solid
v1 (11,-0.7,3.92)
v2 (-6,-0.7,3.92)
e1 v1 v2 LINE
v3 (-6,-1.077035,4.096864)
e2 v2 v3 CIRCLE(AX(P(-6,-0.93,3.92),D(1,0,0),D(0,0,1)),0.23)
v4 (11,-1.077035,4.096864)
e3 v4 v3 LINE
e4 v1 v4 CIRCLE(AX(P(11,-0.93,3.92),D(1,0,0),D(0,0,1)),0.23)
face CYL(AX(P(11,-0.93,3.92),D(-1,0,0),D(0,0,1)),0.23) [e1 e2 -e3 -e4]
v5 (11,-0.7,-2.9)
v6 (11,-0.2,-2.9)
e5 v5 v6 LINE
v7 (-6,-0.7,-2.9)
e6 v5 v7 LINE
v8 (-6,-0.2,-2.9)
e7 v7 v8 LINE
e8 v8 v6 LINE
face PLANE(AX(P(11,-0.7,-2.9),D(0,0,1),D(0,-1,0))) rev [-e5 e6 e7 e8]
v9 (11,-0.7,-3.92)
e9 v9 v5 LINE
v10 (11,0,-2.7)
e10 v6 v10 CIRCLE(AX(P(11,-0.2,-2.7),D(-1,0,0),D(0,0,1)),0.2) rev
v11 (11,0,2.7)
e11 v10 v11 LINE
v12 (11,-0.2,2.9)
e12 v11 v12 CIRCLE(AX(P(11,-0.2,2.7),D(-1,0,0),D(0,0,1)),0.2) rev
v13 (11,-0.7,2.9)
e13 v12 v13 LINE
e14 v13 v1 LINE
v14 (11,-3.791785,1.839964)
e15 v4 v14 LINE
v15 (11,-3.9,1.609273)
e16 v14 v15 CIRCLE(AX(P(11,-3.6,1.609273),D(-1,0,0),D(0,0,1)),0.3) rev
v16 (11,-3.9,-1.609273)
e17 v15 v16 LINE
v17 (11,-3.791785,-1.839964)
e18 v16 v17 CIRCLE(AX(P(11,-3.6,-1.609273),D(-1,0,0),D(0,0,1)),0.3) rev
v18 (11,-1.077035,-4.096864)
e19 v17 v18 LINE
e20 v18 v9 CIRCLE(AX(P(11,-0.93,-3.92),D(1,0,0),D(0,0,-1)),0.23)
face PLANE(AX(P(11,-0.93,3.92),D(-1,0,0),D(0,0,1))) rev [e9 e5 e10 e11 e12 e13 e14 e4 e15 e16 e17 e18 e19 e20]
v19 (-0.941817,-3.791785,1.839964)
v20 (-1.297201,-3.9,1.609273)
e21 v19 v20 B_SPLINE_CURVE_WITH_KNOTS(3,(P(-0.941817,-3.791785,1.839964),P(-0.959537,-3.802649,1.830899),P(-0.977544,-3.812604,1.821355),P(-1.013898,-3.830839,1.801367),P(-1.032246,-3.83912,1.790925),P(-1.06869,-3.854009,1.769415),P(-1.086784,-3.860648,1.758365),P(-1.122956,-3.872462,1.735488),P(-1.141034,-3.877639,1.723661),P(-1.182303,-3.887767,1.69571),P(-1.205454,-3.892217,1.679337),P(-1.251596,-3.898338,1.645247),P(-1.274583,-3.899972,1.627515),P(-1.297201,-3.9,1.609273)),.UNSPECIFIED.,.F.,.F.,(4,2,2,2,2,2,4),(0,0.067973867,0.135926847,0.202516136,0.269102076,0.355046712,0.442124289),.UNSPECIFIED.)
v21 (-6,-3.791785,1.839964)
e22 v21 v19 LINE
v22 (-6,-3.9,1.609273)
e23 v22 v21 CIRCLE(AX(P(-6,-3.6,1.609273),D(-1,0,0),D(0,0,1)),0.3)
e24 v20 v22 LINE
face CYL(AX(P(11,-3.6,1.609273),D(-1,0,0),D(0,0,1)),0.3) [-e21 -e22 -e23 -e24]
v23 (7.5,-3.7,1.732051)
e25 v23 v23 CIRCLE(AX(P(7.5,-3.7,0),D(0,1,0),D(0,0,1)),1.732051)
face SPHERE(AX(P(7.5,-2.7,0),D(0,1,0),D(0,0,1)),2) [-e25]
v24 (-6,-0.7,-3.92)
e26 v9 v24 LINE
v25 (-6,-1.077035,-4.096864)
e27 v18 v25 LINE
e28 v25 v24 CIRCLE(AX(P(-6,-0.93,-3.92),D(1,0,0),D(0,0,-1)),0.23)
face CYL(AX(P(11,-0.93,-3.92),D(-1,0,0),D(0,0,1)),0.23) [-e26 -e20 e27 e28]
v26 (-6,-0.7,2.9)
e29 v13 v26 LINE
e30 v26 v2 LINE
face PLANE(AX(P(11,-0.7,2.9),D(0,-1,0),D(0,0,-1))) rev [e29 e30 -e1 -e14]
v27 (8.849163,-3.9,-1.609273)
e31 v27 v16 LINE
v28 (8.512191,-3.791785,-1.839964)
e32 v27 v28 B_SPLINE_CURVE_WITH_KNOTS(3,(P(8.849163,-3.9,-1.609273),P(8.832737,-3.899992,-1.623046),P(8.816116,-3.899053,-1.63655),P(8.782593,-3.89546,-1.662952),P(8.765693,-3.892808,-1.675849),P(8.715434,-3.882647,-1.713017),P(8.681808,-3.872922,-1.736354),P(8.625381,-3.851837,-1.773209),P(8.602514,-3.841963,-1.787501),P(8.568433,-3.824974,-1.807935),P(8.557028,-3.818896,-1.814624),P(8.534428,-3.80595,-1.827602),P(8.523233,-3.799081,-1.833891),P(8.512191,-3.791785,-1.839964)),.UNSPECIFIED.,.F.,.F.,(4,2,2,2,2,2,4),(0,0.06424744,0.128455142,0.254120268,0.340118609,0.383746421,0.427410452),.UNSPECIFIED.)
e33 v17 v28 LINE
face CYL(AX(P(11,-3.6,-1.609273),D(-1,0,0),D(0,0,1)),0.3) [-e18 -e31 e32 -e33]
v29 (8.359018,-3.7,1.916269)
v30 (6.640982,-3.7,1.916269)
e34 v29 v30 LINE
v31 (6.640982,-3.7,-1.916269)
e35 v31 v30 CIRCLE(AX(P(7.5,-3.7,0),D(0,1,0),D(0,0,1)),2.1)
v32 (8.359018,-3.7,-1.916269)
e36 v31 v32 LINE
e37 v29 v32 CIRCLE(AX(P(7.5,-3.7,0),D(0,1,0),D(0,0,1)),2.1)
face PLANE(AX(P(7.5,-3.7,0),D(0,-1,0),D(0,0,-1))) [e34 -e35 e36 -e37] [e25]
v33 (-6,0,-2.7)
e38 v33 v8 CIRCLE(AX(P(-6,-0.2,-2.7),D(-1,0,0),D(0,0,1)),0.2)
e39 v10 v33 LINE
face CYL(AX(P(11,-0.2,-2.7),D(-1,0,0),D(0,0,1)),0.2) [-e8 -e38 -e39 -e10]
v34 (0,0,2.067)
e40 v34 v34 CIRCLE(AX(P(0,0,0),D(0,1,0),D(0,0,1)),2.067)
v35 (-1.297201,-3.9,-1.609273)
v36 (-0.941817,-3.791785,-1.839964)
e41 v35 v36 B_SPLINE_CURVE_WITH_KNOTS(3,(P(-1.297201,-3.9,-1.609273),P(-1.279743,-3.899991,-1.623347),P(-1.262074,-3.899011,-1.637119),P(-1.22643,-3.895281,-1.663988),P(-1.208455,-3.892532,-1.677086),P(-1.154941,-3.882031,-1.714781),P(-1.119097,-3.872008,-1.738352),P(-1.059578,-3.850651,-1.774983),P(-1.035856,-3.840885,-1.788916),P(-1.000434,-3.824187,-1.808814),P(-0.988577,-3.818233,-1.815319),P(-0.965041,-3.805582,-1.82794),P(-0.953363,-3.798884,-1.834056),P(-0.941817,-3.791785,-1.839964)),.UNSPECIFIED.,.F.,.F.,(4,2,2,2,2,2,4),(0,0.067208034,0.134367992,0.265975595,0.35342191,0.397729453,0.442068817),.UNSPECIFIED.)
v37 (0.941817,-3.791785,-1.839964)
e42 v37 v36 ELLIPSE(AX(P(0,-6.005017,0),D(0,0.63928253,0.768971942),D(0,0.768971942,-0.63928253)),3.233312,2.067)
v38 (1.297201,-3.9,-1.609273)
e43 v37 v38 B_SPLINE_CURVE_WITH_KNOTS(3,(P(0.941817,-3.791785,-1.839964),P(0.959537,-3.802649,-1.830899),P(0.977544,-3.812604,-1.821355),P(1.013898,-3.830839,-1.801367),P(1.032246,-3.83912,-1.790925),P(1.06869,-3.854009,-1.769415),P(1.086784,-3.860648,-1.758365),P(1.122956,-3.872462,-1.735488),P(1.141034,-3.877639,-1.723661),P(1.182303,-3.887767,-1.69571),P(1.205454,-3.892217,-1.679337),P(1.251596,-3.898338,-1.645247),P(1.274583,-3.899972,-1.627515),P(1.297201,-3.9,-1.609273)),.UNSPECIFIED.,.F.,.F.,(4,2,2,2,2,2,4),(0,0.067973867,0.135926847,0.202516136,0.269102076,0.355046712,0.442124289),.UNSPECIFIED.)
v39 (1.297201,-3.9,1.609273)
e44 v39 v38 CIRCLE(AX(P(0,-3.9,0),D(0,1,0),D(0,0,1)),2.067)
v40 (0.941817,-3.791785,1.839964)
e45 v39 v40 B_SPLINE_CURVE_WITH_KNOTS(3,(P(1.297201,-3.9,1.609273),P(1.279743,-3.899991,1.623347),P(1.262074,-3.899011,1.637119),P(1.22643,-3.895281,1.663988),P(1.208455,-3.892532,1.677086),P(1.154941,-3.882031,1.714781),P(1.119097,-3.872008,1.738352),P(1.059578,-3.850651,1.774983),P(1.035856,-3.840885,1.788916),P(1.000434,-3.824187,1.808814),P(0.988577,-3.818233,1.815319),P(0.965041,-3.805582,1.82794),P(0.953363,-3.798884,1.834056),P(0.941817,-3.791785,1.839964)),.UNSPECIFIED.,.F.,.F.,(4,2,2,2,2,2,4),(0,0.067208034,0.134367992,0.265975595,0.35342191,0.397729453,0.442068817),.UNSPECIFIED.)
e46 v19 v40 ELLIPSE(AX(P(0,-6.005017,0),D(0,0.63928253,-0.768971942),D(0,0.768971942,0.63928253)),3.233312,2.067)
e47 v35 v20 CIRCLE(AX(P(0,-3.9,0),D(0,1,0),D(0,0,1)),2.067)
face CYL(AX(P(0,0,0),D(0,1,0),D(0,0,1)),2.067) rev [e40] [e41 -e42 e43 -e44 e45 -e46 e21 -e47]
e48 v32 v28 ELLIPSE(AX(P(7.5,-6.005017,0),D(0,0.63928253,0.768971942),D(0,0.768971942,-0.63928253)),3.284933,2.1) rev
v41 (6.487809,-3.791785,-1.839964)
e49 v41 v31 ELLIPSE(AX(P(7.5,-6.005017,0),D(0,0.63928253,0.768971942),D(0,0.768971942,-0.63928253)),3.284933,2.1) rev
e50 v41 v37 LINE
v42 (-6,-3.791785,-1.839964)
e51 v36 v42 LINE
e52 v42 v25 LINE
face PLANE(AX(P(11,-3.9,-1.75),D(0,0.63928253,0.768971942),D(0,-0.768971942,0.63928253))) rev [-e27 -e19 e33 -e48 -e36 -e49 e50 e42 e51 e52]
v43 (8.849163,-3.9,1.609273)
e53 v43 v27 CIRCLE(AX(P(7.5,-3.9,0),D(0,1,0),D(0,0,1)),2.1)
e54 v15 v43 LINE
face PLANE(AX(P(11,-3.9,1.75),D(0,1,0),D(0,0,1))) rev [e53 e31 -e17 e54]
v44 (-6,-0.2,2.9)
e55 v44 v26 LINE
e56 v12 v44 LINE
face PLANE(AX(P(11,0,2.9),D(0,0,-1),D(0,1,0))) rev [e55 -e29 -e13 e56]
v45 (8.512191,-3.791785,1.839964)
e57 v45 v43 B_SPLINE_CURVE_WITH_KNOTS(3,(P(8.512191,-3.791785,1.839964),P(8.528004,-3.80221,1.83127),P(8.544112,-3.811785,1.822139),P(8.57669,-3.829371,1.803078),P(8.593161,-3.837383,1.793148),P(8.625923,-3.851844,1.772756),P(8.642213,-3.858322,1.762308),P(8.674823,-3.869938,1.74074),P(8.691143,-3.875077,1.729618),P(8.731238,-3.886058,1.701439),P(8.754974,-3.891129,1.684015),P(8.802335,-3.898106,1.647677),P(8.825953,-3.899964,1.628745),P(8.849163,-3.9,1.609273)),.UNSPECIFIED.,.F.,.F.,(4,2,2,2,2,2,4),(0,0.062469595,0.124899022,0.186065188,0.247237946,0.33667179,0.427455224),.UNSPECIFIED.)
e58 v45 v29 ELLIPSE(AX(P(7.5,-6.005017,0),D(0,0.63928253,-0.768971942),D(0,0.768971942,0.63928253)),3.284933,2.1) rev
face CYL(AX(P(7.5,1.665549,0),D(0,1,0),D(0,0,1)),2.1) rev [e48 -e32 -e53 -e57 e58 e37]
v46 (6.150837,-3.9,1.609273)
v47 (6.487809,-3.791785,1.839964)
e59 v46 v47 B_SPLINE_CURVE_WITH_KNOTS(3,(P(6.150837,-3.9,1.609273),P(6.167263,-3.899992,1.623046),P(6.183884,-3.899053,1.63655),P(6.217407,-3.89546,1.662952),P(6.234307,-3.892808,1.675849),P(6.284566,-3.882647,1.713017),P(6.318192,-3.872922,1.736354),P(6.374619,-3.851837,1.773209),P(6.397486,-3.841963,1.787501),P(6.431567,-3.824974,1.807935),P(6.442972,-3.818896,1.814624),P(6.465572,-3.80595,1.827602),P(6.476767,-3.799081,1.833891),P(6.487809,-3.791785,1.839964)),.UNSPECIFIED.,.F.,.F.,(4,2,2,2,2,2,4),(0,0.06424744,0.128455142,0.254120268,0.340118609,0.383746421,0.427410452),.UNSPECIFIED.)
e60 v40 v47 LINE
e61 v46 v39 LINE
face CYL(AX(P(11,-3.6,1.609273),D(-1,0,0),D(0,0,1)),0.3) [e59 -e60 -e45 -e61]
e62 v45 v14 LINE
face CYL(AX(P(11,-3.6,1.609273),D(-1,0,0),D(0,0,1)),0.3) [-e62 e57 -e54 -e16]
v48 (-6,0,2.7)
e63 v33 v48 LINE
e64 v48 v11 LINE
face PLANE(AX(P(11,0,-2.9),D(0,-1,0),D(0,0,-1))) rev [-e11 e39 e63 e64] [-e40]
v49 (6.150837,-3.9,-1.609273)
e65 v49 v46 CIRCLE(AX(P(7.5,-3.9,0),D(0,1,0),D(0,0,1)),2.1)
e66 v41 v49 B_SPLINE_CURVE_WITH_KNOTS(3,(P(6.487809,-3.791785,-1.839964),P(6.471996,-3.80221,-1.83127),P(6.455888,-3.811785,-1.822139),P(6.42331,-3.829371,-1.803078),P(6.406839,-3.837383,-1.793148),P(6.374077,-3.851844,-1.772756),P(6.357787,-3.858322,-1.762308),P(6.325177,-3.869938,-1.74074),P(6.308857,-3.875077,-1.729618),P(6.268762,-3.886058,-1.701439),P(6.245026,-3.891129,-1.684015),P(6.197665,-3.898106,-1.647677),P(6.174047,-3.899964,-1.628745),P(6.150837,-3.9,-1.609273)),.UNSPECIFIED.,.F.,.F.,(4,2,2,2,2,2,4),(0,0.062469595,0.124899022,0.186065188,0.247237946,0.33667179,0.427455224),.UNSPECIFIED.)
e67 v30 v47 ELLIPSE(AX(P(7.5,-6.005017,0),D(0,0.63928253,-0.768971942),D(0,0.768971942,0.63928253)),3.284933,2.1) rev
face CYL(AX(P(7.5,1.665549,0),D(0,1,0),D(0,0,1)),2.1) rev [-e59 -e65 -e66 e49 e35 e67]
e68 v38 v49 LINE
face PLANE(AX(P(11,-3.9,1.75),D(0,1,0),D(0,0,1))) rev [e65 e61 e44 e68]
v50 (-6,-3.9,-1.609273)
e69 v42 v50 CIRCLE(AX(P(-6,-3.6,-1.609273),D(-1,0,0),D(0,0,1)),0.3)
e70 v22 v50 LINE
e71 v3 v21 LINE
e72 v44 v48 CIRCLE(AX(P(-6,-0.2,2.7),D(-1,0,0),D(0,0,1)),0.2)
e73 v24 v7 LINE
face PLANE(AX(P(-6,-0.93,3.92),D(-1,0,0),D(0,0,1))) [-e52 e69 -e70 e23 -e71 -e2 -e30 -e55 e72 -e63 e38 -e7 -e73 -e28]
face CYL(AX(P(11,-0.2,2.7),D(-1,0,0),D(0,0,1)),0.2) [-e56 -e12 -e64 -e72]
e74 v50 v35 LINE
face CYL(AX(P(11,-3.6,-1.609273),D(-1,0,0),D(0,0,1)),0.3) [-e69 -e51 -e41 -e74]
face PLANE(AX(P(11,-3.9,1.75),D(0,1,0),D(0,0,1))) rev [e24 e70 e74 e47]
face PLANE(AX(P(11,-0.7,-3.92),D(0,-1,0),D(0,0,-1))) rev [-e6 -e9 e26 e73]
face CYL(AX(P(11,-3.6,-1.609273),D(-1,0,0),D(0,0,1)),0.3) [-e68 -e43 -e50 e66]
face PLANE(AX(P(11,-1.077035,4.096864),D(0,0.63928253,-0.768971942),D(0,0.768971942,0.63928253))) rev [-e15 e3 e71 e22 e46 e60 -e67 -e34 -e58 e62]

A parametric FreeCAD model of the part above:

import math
import FreeCAD as App
import Part
import Sketcher
Q = App.Units.Quantity


def edges_at(feature, points):
    """Names of the edges that pass closest to the given points."""
    edges = feature.Shape.Edges
    near = lambda p: min(range(len(edges)), key=lambda i: edges[i].distToShape(Part.Vertex(*p))[0])
    return sorted({f"Edge{near(p) + 1}" for p in points})


def add_polygon(sketch, points):
    """Adds a closed chain of lines whose ends are joined by coincident constraints."""
    first, n = sketch.GeometryCount, len(points)
    for a, b in zip(points, points[1:] + points[:1]):
        sketch.addGeometry(Part.LineSegment(App.Vector(*a, 0), App.Vector(*b, 0)), False)
    for i in range(n):
        sketch.addConstraint(Sketcher.Constraint("Coincident", first + i, 2, first + (i + 1) % n, 1))

doc = App.newDocument("Part")
body = doc.addObject("PartDesign::Body", "Body")

sketch1 = body.newObject("Sketcher::SketchObject", "Sketch")
sketch1.AttachmentSupport = (doc.getObject("YZ_Plane"), [""])
sketch1.MapMode = "FlatFace"
sketch1.AttachmentOffset = App.Placement(App.Vector(0, 0, -6), App.Rotation())
sketch1.addGeometry([
    Part.LineSegment(App.Vector(0, -2.9, 0), App.Vector(0, 2.9, 0)),
    Part.LineSegment(App.Vector(0, 2.9, 0), App.Vector(-0.7, 2.9, 0)),
    Part.LineSegment(App.Vector(-0.7, 2.9, 0), App.Vector(-0.7, 3.92, 0)),
    Part.ArcOfCircle(Part.Circle(App.Vector(-0.93, 3.92, 0), App.Vector(0, 0, 1), 0.23), math.radians(0), math.radians(130)),
    Part.LineSegment(App.Vector(-1.08, 4.1, 0), App.Vector(-3.9, 1.75, 0)),
    Part.LineSegment(App.Vector(-3.9, 1.75, 0), App.Vector(-3.9, -1.75, 0)),
    Part.LineSegment(App.Vector(-3.9, -1.75, 0), App.Vector(-1.08, -4.1, 0)),
    Part.ArcOfCircle(Part.Circle(App.Vector(-0.93, -3.92, 0), App.Vector(0, 0, 1), 0.23), math.radians(-130), math.radians(0)),
    Part.LineSegment(App.Vector(-0.7, -3.92, 0), App.Vector(-0.7, -2.9, 0)),
    Part.LineSegment(App.Vector(-0.7, -2.9, 0), App.Vector(0, -2.9, 0)),
], False)
sketch1.addConstraint([
    Sketcher.Constraint("Coincident", 0, 2, 1, 1),
    Sketcher.Constraint("Coincident", 1, 2, 2, 1),
    Sketcher.Constraint("Tangent", 2, 2, 3, 1),
    Sketcher.Constraint("Tangent", 3, 2, 4, 1),
    Sketcher.Constraint("Coincident", 4, 2, 5, 1),
    Sketcher.Constraint("Coincident", 5, 2, 6, 1),
    Sketcher.Constraint("Tangent", 6, 2, 7, 1),
    Sketcher.Constraint("Tangent", 7, 2, 8, 1),
    Sketcher.Constraint("Coincident", 8, 2, 9, 1),
    Sketcher.Constraint("Coincident", 9, 2, 0, 1),
    Sketcher.Constraint("Vertical", 0),
    Sketcher.Constraint("Horizontal", 1),
    Sketcher.Constraint("Vertical", 2),
    Sketcher.Constraint("Vertical", 5),
    Sketcher.Constraint("Vertical", 8),
    Sketcher.Constraint("Horizontal", 9),
    Sketcher.Constraint("Equal", 3, 7),
    Sketcher.Constraint("Symmetric", 0, 2, 9, 2, -1, 1),
    Sketcher.Constraint("Symmetric", 3, 3, 7, 3, -1),
    Sketcher.Constraint("Vertical", 3, 2, 6, 2),
    Sketcher.Constraint("Radius", 3, Q("0.23 mm")),
    Sketcher.Constraint("DistanceX", 1, 2, 1, 1, Q("0.7 mm")),
    Sketcher.Constraint("DistanceY", 0, 1, 0, 2, Q("5.8 mm")),
    Sketcher.Constraint("DistanceY", 5, 2, 5, 1, Q("3.5 mm")),
    Sketcher.Constraint("DistanceY", 2, 1, 2, 2, Q("1.02 mm")),
    Sketcher.Constraint("DistanceX", 4, 2, -1, 1, Q("3.9 mm")),
])
pad1 = body.newObject("PartDesign::Pad", "Pad")
pad1.Profile = sketch1
pad1.Length = 17
doc.recompute()

fillet = body.newObject("PartDesign::Fillet", "Fillet")
fillet.Base = (pad1, edges_at(pad1, [(2.5, -3.9, -1.75), (2.5, -3.9, 1.75)]))
fillet.Radius = 0.3
doc.recompute()

fillet2 = body.newObject("PartDesign::Fillet", "Fillet001")
fillet2.Base = (fillet, edges_at(fillet, [(2.5, 0, 2.9), (2.5, 0, -2.9)]))
fillet2.Radius = 0.2

sketch2 = body.newObject("Sketcher::SketchObject", "Sketch001")
sketch2.AttachmentSupport = (doc.getObject("YZ_Plane"), [""])
sketch2.MapMode = "FlatFace"
sketch2.AttachmentOffset = App.Placement(App.Vector(0, 0, 7.5), App.Rotation())
add_polygon(sketch2, [(-3.7, 0), (-3.9, 0), (-3.9, -2.1), (-3.7, -2.1)])
sketch2.addConstraint([
    Sketcher.Constraint("Horizontal", 0),
    Sketcher.Constraint("Vertical", 1),
    Sketcher.Constraint("Horizontal", 2),
    Sketcher.Constraint("Vertical", 3),
    Sketcher.Constraint("PointOnObject", 0, 2, -1),
    Sketcher.Constraint("DistanceX", 0, 2, 0, 1, Q("0.2 mm")),
    Sketcher.Constraint("DistanceY", 1, 2, 1, 1, Q("2.1 mm")),
    Sketcher.Constraint("DistanceX", 0, 2, -1, 1, Q("3.9 mm")),
])
groove = body.newObject("PartDesign::Groove", "Groove")
groove.Profile = sketch2
groove.ReferenceAxis = (sketch2, ["H_Axis"])
groove.Angle = 360

sketch3 = body.newObject("Sketcher::SketchObject", "Sketch002")
sketch3.AttachmentSupport = (doc.getObject("YZ_Plane"), [""])
sketch3.MapMode = "FlatFace"
sketch3.AttachmentOffset = App.Placement(App.Vector(0, 0, 7.5), App.Rotation())
sketch3.addGeometry([
    Part.LineSegment(App.Vector(-3.7, -1.7, 0), App.Vector(-3.7, 0, 0)),
    Part.LineSegment(App.Vector(-3.7, 0, 0), App.Vector(-4.7, 0, 0)),
    Part.ArcOfCircle(Part.Circle(App.Vector(-2.7, 0, 0), App.Vector(0, 0, 1), 2), math.radians(180), math.radians(240)),
], False)
sketch3.addConstraint([
    Sketcher.Constraint("Coincident", 0, 2, 1, 1),
    Sketcher.Constraint("Coincident", 1, 2, 2, 1),
    Sketcher.Constraint("Coincident", 2, 2, 0, 1),
    Sketcher.Constraint("Vertical", 0),
    Sketcher.Constraint("Horizontal", 1),
    Sketcher.Constraint("PointOnObject", 2, 3, -1),
    Sketcher.Constraint("PointOnObject", 0, 2, -1),
    Sketcher.Constraint("Radius", 2, Q("2 mm")),
    Sketcher.Constraint("DistanceX", 1, 2, 1, 1, Q("1 mm")),
    Sketcher.Constraint("DistanceX", 2, 3, -1, 1, Q("2.7 mm")),
])
revolution = body.newObject("PartDesign::Revolution", "Revolution")
revolution.Profile = sketch3
revolution.ReferenceAxis = (sketch3, ["H_Axis"])
revolution.Angle = 360

sketch4 = body.newObject("Sketcher::SketchObject", "Sketch003")
sketch4.AttachmentSupport = (doc.getObject("XZ_Plane"), [""])
sketch4.MapMode = "FlatFace"
sketch4.addGeometry(Part.Circle(App.Vector(0, 0, 0), App.Vector(0, 0, 1), 2.1), False)
sketch4.addConstraint([
    Sketcher.Constraint("Coincident", 0, 3, -1, 1),
    Sketcher.Constraint("Diameter", 0, Q("4.134 mm")),
])
doc.recompute()
hole = body.newObject("PartDesign::Hole", "Hole")
hole.Profile = sketch4
hole.ThreadType = "None"
hole.Diameter = 4.134
hole.DepthType = "ThroughAll"
hole.Reversed = True

doc.recompute()
